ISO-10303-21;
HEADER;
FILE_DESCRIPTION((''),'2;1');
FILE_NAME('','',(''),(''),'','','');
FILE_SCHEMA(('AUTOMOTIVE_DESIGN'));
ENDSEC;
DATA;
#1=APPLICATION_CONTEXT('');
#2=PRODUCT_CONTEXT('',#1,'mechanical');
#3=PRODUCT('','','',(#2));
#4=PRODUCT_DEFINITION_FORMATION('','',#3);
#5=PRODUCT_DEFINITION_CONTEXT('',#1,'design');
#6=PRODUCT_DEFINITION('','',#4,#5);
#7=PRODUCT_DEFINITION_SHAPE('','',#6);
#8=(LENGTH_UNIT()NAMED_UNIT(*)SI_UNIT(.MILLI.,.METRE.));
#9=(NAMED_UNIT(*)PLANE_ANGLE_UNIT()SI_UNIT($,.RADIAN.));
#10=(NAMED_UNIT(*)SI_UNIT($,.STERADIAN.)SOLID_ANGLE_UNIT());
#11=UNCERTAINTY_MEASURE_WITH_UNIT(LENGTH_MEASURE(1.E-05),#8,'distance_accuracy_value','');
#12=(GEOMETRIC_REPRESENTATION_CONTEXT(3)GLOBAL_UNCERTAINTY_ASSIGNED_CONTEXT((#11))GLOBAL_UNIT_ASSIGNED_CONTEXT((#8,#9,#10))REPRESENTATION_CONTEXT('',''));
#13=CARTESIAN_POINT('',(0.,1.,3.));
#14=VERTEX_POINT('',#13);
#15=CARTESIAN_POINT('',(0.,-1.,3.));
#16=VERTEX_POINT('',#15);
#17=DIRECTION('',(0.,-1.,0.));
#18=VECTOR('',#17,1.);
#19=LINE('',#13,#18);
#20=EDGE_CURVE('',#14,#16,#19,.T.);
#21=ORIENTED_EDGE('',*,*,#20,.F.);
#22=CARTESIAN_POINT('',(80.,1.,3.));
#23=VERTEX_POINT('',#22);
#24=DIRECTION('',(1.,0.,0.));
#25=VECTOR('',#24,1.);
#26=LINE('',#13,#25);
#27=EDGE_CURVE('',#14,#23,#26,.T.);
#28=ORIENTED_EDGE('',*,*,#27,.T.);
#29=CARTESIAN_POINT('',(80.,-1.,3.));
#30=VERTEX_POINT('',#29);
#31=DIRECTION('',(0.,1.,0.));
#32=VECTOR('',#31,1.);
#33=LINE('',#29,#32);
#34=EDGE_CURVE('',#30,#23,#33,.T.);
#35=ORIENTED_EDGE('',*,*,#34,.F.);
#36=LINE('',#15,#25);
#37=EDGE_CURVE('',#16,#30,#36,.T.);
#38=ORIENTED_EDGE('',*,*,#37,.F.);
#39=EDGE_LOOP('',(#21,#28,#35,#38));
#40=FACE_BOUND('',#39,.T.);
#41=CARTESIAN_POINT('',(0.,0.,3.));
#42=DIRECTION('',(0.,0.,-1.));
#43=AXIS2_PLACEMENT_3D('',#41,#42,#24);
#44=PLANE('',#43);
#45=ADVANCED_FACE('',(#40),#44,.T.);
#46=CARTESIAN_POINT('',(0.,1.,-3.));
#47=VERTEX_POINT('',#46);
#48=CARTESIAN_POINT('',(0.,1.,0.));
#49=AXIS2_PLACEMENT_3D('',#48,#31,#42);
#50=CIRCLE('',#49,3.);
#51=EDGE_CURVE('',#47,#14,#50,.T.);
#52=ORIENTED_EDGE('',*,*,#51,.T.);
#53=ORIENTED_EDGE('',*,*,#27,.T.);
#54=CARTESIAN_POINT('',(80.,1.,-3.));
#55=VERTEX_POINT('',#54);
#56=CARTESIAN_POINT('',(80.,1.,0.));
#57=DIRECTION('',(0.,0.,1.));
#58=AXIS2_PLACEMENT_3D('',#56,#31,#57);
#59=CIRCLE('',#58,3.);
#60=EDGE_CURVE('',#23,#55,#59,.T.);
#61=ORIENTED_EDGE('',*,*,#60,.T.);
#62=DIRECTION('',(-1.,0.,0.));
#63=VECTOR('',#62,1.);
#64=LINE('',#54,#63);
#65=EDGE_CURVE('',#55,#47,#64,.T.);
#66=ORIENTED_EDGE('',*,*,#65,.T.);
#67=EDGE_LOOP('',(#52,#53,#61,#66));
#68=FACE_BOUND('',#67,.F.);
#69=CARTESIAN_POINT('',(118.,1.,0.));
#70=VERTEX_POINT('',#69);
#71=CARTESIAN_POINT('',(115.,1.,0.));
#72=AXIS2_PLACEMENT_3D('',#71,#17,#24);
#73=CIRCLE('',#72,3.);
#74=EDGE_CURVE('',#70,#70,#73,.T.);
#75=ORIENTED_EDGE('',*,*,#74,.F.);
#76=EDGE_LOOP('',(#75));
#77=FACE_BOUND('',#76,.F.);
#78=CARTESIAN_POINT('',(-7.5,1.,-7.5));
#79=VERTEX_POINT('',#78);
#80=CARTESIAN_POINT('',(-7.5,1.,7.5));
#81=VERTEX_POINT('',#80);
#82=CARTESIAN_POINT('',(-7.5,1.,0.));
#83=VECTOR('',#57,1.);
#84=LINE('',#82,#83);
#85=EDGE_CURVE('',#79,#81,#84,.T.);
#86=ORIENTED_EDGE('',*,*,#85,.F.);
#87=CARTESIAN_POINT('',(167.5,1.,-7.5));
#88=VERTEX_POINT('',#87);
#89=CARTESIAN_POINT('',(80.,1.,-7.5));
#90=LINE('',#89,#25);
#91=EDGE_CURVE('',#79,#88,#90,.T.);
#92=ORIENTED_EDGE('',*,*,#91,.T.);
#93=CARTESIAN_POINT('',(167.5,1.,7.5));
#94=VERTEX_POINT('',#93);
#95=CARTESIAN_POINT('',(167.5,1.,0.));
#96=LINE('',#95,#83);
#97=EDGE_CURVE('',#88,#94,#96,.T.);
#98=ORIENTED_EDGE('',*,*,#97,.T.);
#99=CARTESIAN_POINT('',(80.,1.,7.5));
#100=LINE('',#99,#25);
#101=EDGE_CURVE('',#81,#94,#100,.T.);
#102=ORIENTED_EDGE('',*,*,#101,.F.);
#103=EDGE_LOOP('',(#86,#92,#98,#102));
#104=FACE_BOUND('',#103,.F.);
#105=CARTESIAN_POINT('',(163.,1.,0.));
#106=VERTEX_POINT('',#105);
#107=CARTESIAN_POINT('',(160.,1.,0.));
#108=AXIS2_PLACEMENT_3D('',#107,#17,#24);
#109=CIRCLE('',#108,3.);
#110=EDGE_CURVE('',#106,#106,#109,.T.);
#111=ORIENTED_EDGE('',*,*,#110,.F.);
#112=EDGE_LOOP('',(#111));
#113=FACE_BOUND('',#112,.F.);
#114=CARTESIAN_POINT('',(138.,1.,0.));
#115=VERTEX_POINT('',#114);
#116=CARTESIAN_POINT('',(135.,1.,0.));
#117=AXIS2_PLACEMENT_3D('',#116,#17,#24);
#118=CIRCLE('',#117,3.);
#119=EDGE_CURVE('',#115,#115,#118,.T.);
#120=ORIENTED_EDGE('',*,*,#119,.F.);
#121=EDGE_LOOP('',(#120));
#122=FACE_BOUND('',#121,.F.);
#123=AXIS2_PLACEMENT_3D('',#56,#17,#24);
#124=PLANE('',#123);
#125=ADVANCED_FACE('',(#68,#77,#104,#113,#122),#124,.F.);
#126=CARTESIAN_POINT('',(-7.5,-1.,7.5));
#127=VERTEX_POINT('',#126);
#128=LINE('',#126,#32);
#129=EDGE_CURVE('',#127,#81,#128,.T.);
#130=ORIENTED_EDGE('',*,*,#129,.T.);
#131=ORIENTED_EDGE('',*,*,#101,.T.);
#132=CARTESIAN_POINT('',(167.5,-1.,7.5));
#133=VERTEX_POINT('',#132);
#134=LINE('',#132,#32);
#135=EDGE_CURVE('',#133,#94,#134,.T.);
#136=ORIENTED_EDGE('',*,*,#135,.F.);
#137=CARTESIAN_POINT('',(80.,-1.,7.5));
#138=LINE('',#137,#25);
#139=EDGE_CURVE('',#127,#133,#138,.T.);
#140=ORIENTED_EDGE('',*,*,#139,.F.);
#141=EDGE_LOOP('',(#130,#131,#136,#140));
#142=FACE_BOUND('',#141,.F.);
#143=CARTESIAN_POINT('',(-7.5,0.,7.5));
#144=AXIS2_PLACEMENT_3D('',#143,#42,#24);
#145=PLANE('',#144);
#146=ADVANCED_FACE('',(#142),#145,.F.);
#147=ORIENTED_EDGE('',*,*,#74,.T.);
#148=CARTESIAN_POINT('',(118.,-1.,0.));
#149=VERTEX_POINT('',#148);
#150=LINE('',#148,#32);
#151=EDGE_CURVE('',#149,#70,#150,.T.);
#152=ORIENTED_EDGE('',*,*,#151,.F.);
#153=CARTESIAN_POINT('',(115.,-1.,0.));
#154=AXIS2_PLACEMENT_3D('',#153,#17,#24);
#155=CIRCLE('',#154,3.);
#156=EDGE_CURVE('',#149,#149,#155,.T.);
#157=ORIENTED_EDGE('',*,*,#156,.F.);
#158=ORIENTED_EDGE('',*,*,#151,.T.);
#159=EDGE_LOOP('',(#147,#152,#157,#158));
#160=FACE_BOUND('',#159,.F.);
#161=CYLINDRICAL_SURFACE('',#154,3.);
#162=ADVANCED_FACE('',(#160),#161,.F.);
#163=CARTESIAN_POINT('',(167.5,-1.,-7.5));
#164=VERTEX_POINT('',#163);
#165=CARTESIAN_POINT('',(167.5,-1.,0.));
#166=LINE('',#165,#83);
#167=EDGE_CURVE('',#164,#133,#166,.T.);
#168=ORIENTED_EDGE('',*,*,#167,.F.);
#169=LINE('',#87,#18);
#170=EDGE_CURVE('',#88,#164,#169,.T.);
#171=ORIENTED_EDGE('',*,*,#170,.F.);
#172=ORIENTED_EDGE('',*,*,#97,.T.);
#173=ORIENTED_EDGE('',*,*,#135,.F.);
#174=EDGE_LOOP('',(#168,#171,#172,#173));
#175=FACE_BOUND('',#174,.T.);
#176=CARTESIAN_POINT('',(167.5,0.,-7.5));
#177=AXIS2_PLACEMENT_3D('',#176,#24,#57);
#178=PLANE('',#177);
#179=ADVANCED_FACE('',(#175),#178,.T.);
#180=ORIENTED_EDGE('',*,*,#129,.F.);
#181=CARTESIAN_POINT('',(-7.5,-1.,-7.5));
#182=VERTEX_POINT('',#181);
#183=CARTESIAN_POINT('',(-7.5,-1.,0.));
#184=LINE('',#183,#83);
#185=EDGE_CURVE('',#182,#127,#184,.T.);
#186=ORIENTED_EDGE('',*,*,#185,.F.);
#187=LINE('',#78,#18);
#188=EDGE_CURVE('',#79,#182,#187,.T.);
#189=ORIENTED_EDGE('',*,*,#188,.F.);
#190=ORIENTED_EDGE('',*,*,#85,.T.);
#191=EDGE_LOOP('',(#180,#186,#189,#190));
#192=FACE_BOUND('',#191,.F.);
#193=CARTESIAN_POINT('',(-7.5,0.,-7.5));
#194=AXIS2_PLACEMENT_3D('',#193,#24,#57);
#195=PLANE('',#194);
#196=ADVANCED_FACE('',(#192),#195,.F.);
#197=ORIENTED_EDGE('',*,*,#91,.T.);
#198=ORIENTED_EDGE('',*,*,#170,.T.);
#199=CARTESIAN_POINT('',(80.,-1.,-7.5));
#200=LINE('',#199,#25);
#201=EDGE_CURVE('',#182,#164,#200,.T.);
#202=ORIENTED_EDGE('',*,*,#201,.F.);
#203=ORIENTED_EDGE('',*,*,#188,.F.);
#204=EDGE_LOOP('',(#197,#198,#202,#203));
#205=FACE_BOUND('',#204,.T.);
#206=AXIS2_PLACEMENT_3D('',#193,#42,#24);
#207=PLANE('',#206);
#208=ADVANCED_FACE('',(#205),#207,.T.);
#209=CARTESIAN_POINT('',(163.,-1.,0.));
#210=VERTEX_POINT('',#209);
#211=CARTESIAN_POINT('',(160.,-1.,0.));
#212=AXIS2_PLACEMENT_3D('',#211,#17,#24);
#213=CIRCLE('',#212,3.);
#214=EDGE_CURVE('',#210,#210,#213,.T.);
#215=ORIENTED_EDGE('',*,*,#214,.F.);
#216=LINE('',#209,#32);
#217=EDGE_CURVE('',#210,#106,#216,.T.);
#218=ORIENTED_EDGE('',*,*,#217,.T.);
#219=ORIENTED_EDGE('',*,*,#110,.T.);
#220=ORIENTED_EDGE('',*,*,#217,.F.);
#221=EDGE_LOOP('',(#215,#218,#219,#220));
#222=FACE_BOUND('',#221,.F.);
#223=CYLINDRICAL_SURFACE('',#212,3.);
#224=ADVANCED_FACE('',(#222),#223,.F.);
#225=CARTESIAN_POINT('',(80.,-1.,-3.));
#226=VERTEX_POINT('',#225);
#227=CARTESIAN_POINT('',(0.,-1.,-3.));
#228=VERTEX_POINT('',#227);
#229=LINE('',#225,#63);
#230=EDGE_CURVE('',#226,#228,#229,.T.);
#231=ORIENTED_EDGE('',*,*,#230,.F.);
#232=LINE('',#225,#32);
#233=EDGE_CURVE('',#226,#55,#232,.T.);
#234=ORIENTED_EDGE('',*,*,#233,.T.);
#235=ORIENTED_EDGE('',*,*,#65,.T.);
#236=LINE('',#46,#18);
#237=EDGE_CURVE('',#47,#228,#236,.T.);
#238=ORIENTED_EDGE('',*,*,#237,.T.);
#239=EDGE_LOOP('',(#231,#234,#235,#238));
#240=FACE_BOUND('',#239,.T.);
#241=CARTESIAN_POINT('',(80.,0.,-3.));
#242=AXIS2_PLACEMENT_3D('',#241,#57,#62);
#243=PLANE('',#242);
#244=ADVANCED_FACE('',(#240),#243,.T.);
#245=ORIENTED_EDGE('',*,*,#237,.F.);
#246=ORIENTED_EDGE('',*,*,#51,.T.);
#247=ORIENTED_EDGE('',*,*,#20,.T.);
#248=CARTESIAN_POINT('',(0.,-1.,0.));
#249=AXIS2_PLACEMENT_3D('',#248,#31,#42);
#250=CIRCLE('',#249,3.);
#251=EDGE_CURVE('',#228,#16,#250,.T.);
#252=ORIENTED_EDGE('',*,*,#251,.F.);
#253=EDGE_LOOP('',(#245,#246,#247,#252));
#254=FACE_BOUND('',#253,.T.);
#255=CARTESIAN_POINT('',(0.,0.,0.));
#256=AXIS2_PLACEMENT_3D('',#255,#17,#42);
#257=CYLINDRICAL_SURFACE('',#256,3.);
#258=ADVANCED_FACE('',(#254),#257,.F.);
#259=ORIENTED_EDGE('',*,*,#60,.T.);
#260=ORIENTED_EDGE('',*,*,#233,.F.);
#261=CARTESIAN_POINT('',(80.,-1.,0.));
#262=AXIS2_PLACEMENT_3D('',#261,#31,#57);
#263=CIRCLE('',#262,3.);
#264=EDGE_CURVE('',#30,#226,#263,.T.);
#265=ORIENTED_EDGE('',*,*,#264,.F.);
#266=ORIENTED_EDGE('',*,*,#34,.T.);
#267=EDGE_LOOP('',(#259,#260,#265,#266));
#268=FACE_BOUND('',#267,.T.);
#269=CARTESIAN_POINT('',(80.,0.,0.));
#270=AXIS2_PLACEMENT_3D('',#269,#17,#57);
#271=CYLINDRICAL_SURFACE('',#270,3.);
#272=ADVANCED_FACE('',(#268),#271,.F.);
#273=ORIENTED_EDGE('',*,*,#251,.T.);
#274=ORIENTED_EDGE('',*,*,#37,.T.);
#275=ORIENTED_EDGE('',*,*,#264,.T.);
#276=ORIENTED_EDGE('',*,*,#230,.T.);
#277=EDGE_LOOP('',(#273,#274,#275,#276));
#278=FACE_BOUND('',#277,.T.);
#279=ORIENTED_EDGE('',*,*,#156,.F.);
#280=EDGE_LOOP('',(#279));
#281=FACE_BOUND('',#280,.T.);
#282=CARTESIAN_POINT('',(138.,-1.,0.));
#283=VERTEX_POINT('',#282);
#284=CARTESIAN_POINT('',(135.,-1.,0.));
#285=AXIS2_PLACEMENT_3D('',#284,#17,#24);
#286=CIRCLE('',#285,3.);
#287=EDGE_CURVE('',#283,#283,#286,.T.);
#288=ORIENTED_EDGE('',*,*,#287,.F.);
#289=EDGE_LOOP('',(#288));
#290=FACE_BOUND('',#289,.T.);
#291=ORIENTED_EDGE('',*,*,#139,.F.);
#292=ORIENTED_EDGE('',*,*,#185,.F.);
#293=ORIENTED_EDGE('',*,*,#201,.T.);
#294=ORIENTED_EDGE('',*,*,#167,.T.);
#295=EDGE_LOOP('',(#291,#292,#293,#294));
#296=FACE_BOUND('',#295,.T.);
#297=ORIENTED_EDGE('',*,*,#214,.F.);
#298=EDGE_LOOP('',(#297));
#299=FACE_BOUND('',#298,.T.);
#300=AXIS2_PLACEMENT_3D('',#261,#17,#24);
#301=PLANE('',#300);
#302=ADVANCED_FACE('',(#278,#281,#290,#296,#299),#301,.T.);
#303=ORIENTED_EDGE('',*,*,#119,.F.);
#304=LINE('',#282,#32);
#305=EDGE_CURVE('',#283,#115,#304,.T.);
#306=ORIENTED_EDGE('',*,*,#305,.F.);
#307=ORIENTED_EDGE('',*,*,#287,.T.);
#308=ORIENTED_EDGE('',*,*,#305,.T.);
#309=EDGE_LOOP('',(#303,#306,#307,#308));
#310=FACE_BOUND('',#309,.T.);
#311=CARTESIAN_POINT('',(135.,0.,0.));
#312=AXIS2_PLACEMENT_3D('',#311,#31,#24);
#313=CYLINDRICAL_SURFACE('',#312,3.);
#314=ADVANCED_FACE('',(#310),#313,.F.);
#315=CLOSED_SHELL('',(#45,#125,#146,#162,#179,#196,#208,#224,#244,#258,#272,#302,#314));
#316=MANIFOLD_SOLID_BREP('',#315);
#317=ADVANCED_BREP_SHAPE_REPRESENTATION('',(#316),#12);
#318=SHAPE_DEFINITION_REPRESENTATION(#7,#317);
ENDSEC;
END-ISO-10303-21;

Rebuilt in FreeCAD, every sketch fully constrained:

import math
import FreeCAD as App
import Part
import Sketcher

V = App.Vector
Q = App.Units.Quantity


def add_polygon(sketch, points):
    """Adds a closed chain of lines whose ends are joined by coincident constraints."""
    first, n = sketch.GeometryCount, len(points)
    for a, b in zip(points, points[1:] + points[:1]):
        sketch.addGeometry(Part.LineSegment(App.Vector(*a, 0), App.Vector(*b, 0)), False)
    for i in range(n):
        sketch.addConstraint(Sketcher.Constraint("Coincident", first + i, 2, first + (i + 1) % n, 1))

doc = App.newDocument("Part")
body = doc.addObject("PartDesign::Body", "Body")

sketch1 = doc.addObject("Sketcher::SketchObject", "Sketch")
body.addObject(sketch1)
sketch1.AttachmentSupport = (doc.XZ_Plane, [""])
sketch1.MapMode = "FlatFace"
add_polygon(sketch1, [(-7.5, 7.5), (-7.5, -7.5), (167.5, -7.5), (167.5, 7.5)])
sketch1.addGeometry(Part.LineSegment(V(80, -3, 0), V(0, -3, 0)), False)
sketch1.addGeometry(Part.ArcOfCircle(Part.Circle(V(0, 0, 0), V(0, 0, 1), 3), math.radians(90), math.radians(270)), False)
sketch1.addGeometry(Part.LineSegment(V(0, 3, 0), V(80, 3, 0)), False)
sketch1.addGeometry(Part.ArcOfCircle(Part.Circle(V(80, 0, 0), V(0, 0, 1), 3), math.radians(-90), math.radians(90)), False)
sketch1.addGeometry(Part.Circle(V(135, 0, 0), V(0, 0, 1), 3), False)
sketch1.addConstraint(Sketcher.Constraint("Tangent", 4, 2, 5, 2))
sketch1.addConstraint(Sketcher.Constraint("Tangent", 5, 1, 6, 1))
sketch1.addConstraint(Sketcher.Constraint("Tangent", 6, 2, 7, 2))
sketch1.addConstraint(Sketcher.Constraint("Tangent", 7, 1, 4, 1))
sketch1.addConstraint(Sketcher.Constraint("Vertical", 0))
sketch1.addConstraint(Sketcher.Constraint("Horizontal", 1))
sketch1.addConstraint(Sketcher.Constraint("Vertical", 2))
sketch1.addConstraint(Sketcher.Constraint("Horizontal", 3))
sketch1.addConstraint(Sketcher.Constraint("Horizontal", 4))
sketch1.addConstraint(Sketcher.Constraint("Horizontal", 6))
sketch1.addConstraint(Sketcher.Constraint("Coincident", 5, 3, -1, 1))
sketch1.addConstraint(Sketcher.Constraint("Equal", 7, 8))
sketch1.addConstraint(Sketcher.Constraint("PointOnObject", 8, 3, -1))
sketch1.addConstraint(Sketcher.Constraint("Diameter", 8, Q("6 mm")))
sketch1.addConstraint(Sketcher.Constraint("DistanceX", 1, 1, 1, 2, Q("175 mm")))
sketch1.addConstraint(Sketcher.Constraint("DistanceX", 4, 2, 4, 1, Q("80 mm")))
sketch1.addConstraint(Sketcher.Constraint("DistanceY", 0, 2, 0, 1, Q("15 mm")))
sketch1.addConstraint(Sketcher.Constraint("DistanceX", -1, 1, 8, 3, Q("135 mm")))
sketch1.addConstraint(Sketcher.Constraint("DistanceX", 0, 2, -1, 1, Q("7.5 mm")))
sketch1.addConstraint(Sketcher.Constraint("DistanceY", 0, 2, -1, 1, Q("7.5 mm")))
pad1 = doc.addObject("PartDesign::Pad", "Pad")
body.addObject(pad1)
pad1.Profile = sketch1
pad1.Length = 2
pad1.Midplane = True

sketch2 = doc.addObject("Sketcher::SketchObject", "Sketch001")
body.addObject(sketch2)
sketch2.AttachmentSupport = (doc.XZ_Plane, [""])
sketch2.MapMode = "FlatFace"
sketch2.AttachmentOffset = App.Placement(V(0, 0, 1), App.Rotation())
sketch2.addGeometry(Part.Circle(V(160, 0, 0), V(0, 0, 1), 3), False)
sketch2.addConstraint(Sketcher.Constraint("PointOnObject", 0, 3, -1))
sketch2.addConstraint(Sketcher.Constraint("Diameter", 0, Q("6 mm")))
sketch2.addConstraint(Sketcher.Constraint("DistanceX", -1, 1, 0, 3, Q("160 mm")))
pocket1 = doc.addObject("PartDesign::Pocket", "Pocket")
body.addObject(pocket1)
pocket1.Profile = sketch2
pocket1.Type = "ThroughAll"

sketch3 = doc.addObject("Sketcher::SketchObject", "Sketch002")
body.addObject(sketch3)
sketch3.AttachmentSupport = (doc.XZ_Plane, [""])
sketch3.MapMode = "FlatFace"
sketch3.AttachmentOffset = App.Placement(V(0, 0, 1), App.Rotation())
sketch3.addGeometry(Part.Circle(V(115, 0, 0), V(0, 0, 1), 3), False)
sketch3.addConstraint(Sketcher.Constraint("PointOnObject", 0, 3, -1))
sketch3.addConstraint(Sketcher.Constraint("Diameter", 0, Q("6 mm")))
sketch3.addConstraint(Sketcher.Constraint("DistanceX", -1, 1, 0, 3, Q("115 mm")))
pocket2 = doc.addObject("PartDesign::Pocket", "Pocket001")
body.addObject(pocket2)
pocket2.Profile = sketch3
pocket2.Type = "ThroughAll"

doc.recompute()
